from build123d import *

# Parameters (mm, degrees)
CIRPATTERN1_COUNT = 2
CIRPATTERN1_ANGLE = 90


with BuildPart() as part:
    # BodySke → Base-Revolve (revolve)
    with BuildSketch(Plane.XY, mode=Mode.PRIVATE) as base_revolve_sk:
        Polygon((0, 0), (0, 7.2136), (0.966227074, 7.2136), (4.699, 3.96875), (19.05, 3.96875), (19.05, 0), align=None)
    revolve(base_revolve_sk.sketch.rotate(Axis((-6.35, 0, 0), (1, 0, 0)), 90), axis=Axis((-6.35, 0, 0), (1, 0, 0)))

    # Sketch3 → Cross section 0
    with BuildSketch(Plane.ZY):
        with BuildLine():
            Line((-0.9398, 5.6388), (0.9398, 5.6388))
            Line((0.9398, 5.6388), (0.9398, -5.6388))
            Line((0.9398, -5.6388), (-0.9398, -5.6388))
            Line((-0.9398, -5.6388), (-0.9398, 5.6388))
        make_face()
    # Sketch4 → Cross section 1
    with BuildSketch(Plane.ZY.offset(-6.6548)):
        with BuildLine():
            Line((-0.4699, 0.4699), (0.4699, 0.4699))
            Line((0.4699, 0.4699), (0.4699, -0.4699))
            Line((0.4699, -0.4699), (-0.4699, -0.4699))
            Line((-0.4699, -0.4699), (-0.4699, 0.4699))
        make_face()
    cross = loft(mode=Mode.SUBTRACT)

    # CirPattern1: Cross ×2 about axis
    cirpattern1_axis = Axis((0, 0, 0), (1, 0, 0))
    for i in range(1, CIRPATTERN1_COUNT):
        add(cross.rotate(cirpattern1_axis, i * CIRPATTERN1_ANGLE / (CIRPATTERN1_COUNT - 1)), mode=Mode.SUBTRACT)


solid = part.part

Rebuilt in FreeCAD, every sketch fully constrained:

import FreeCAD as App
import Part
import Sketcher
Q = App.Units.Quantity


def add_polygon(sketch, points):
    """Adds a closed chain of lines whose ends are joined by coincident constraints."""
    first, n = sketch.GeometryCount, len(points)
    for a, b in zip(points, points[1:] + points[:1]):
        sketch.addGeometry(Part.LineSegment(App.Vector(*a, 0), App.Vector(*b, 0)), False)
    for i in range(n):
        sketch.addConstraint(Sketcher.Constraint("Coincident", first + i, 2, first + (i + 1) % n, 1))

doc = App.newDocument("Part")
body = doc.addObject("PartDesign::Body", "Body")

# Sketch on XY plane
sketch1 = body.newObject("Sketcher::SketchObject", "Sketch")
sketch1.AttachmentSupport = (doc.getObject("XY_Plane"), [""])
sketch1.MapMode = "FlatFace"
add_polygon(sketch1, [(0, 7.2), (0, 0), (19.1, 0), (19.1, 4), (4.7, 4), (1, 7.2)])  # lines 0-5
sketch1.addConstraint(Sketcher.Constraint("Vertical", 0))
sketch1.addConstraint(Sketcher.Constraint("Horizontal", 1))
sketch1.addConstraint(Sketcher.Constraint("Vertical", 2))
sketch1.addConstraint(Sketcher.Constraint("Horizontal", 3))
sketch1.addConstraint(Sketcher.Constraint("Horizontal", 5))
sketch1.addConstraint(Sketcher.Constraint("Coincident", 0, 2, -1, 1))
sketch1.addConstraint(Sketcher.Constraint("Angle", 4, Q("139 deg")))
sketch1.addConstraint(Sketcher.Constraint("DistanceX", 1, 1, 1, 2, Q("0.75 in")))
sketch1.addConstraint(Sketcher.Constraint("DistanceX", 3, 2, 3, 1, Q("0.565 in")))
sketch1.addConstraint(Sketcher.Constraint("DistanceY", 0, 2, 0, 1, Q("0.284 in")))
sketch1.addConstraint(Sketcher.Constraint("DistanceY", 2, 1, 2, 2, Q("0.15625 in")))
revolution = body.newObject("PartDesign::Revolution", "Revolution")
revolution.Profile = sketch1
revolution.ReferenceAxis = (sketch1, ["H_Axis"])
revolution.Angle = 360

# Sketch on YZ plane
sketch2 = body.newObject("Sketcher::SketchObject", "Sketch001")
sketch2.AttachmentSupport = (doc.getObject("YZ_Plane"), [""])
sketch2.MapMode = "FlatFace"
add_polygon(sketch2, [(5.6, 0.9), (5.6, -0.9), (-5.6, -0.9), (-5.6, 0.9)])  # lines 0-3
sketch2.addConstraint(Sketcher.Constraint("Vertical", 0))
sketch2.addConstraint(Sketcher.Constraint("Horizontal", 1))
sketch2.addConstraint(Sketcher.Constraint("Vertical", 2))
sketch2.addConstraint(Sketcher.Constraint("Horizontal", 3))
sketch2.addConstraint(Sketcher.Constraint("Symmetric", 0, 2, 2, 2, -1, 1))
sketch2.addConstraint(Sketcher.Constraint("DistanceX", 1, 2, 1, 1, Q("0.444 in")))
sketch2.addConstraint(Sketcher.Constraint("DistanceY", 0, 2, 0, 1, Q("0.074 in")))

# Sketch on YZ plane
sketch3 = body.newObject("Sketcher::SketchObject", "Sketch002")
sketch3.AttachmentSupport = (doc.getObject("YZ_Plane"), [""])
sketch3.MapMode = "FlatFace"
sketch3.AttachmentOffset = App.Placement(App.Vector(0, 0, 0.262 * 25.4), App.Rotation())
add_polygon(sketch3, [(0.5, 0.5), (0.5, -0.5), (-0.5, -0.5), (-0.5, 0.5)])  # lines 0-3
sketch3.addConstraint(Sketcher.Constraint("Vertical", 0))
sketch3.addConstraint(Sketcher.Constraint("Horizontal", 1))
sketch3.addConstraint(Sketcher.Constraint("Vertical", 2))
sketch3.addConstraint(Sketcher.Constraint("Horizontal", 3))
sketch3.addConstraint(Sketcher.Constraint("Symmetric", 0, 2, 2, 2, -1, 1))
sketch3.addConstraint(Sketcher.Constraint("Equal", 3, 0))
sketch3.addConstraint(Sketcher.Constraint("DistanceX", 1, 2, 1, 1, Q("0.037 in")))

subtractiveloft = body.newObject("PartDesign::SubtractiveLoft", "SubtractiveLoft")
subtractiveloft.Profile = sketch2
subtractiveloft.Sections = [sketch3]
doc.recompute()

polarpattern = body.newObject("PartDesign::PolarPattern", "PolarPattern")
polarpattern.Originals = [subtractiveloft]
polarpattern.Axis = (doc.getObject("X_Axis"), [""])
polarpattern.Angle = 90
polarpattern.Occurrences = 2
body.Tip = polarpattern

doc.recompute()
